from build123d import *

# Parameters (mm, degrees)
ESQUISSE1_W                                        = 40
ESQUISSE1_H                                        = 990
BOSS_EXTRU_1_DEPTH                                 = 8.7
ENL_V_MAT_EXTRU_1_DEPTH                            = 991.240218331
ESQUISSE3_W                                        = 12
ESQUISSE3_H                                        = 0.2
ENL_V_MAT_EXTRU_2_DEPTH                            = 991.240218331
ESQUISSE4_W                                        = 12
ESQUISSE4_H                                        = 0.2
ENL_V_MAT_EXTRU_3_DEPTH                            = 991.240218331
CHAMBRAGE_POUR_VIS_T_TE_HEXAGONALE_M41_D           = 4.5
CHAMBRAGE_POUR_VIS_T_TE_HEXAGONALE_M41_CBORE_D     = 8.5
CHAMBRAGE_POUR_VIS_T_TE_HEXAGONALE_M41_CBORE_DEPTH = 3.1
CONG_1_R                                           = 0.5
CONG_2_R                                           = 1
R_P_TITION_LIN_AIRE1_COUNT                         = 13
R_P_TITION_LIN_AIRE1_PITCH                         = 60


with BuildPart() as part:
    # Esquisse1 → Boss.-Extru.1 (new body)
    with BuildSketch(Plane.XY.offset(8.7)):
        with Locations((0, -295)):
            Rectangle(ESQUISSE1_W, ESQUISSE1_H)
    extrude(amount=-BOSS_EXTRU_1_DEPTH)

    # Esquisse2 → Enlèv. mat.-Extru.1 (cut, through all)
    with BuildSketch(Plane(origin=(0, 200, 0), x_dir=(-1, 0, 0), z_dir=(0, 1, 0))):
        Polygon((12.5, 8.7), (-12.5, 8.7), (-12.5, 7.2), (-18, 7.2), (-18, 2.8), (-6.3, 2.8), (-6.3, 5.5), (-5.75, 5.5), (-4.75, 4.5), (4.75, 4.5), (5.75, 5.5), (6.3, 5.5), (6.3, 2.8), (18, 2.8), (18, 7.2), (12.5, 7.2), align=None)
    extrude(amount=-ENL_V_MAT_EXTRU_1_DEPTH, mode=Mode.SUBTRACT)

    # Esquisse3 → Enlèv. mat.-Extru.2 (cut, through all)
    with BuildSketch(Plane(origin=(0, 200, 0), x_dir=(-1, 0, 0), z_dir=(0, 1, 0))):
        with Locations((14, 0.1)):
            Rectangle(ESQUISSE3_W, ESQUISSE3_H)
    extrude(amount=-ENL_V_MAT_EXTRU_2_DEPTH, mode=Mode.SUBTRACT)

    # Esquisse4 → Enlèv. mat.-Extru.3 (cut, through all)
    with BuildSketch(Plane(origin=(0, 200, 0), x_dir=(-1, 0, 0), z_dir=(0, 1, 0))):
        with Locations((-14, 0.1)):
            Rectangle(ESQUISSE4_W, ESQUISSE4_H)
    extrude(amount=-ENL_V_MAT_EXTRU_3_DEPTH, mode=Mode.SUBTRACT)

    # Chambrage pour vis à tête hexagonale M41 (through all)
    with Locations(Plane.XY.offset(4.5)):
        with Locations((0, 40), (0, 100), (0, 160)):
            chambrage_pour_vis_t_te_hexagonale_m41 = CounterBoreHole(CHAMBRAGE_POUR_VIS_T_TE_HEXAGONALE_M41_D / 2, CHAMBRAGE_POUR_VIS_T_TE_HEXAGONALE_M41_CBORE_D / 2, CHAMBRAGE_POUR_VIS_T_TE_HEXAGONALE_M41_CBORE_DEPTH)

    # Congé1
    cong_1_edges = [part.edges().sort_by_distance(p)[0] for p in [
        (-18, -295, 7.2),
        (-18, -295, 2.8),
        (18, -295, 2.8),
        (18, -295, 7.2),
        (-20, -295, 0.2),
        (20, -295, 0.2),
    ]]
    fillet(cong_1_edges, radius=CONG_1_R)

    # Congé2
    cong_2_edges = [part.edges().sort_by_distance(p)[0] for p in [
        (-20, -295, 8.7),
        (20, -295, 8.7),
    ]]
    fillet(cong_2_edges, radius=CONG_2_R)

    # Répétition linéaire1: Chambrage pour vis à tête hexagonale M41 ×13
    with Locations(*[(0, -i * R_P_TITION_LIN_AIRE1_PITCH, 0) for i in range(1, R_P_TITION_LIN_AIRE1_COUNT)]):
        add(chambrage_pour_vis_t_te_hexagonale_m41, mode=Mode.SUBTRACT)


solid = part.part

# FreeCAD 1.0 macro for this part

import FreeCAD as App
import Part
import Sketcher

V = App.Vector
Q = App.Units.Quantity


def edges_at(feature, points):
    """Names of the edges that pass closest to the given points."""
    edges = feature.Shape.Edges
    near = lambda p: min(range(len(edges)), key=lambda i: edges[i].distToShape(Part.Vertex(*p))[0])
    return sorted({f"Edge{near(p) + 1}" for p in points})


def add_polygon(sketch, points):
    """Adds a closed chain of lines whose ends are joined by coincident constraints."""
    first, n = sketch.GeometryCount, len(points)
    for a, b in zip(points, points[1:] + points[:1]):
        sketch.addGeometry(Part.LineSegment(App.Vector(*a, 0), App.Vector(*b, 0)), False)
    for i in range(n):
        sketch.addConstraint(Sketcher.Constraint("Coincident", first + i, 2, first + (i + 1) % n, 1))

doc = App.newDocument("Part")
body = doc.addObject("PartDesign::Body", "Body")

# Sketch on XY plane
sketch1 = body.newObject("Sketcher::SketchObject", "Sketch")
sketch1.AttachmentSupport = (doc.getObject("XY_Plane"), [""])
sketch1.MapMode = "FlatFace"
sketch1.AttachmentOffset = App.Placement(V(0, 0, 8.7), App.Rotation())
add_polygon(sketch1, [(-20, 200), (-20, -790), (20, -790), (20, 200)])  # lines 0-3
sketch1.addConstraint([
    Sketcher.Constraint("Vertical", 0),
    Sketcher.Constraint("Horizontal", 1),
    Sketcher.Constraint("Vertical", 2),
    Sketcher.Constraint("Horizontal", 3),
    Sketcher.Constraint("DistanceX", 1, 1, 1, 2, Q("40 mm")),
    Sketcher.Constraint("DistanceY", 0, 2, 0, 1, Q("990 mm")),
    Sketcher.Constraint("DistanceX", 0, 2, -1, 1, Q("20 mm")),
    Sketcher.Constraint("DistanceY", 0, 2, -1, 1, Q("790 mm")),
])
pad1 = body.newObject("PartDesign::Pad", "Pad")
pad1.Profile = sketch1
pad1.Length = 8.7
pad1.Reversed = True

# Sketch on XZ plane
sketch2 = body.newObject("Sketcher::SketchObject", "Sketch001")
sketch2.AttachmentSupport = (doc.getObject("XZ_Plane"), [""])
sketch2.MapMode = "FlatFace"
sketch2.AttachmentOffset = App.Placement(V(0, 0, -200), App.Rotation())
add_polygon(sketch2, [(-12.5, 8.7), (12.5, 8.7), (12.5, 7.2), (18, 7.2), (18, 2.8), (6.3, 2.8), (6.3, 5.5), (5.8, 5.5), (4.8, 4.5), (-4.8, 4.5), (-5.8, 5.5), (-6.3, 5.5), (-6.3, 2.8), (-18, 2.8), (-18, 7.2), (-12.5, 7.2)])  # lines 0-15
sketch2.addConstraint([
    Sketcher.Constraint("Horizontal", 0),
    Sketcher.Constraint("Vertical", 1),
    Sketcher.Constraint("Horizontal", 2),
    Sketcher.Constraint("Vertical", 3),
    Sketcher.Constraint("Horizontal", 4),
    Sketcher.Constraint("Vertical", 5),
    Sketcher.Constraint("Horizontal", 6),
    Sketcher.Constraint("Horizontal", 8),
    Sketcher.Constraint("Horizontal", 10),
    Sketcher.Constraint("Vertical", 11),
    Sketcher.Constraint("Horizontal", 12),
    Sketcher.Constraint("Vertical", 13),
    Sketcher.Constraint("Horizontal", 14),
    Sketcher.Constraint("Vertical", 15),
    Sketcher.Constraint("Symmetric", 6, 2, 9, 2, -2),
    Sketcher.Constraint("Symmetric", 4, 2, 11, 2, -2),
    Sketcher.Constraint("Symmetric", 2, 2, 13, 2, -2),
    Sketcher.Constraint("Perpendicular", 7, 9),
    Sketcher.Constraint("Equal", 2, 14),
    Sketcher.Constraint("Equal", 7, 9),
    Sketcher.Constraint("DistanceX", 0, 1, 0, 2, Q("25 mm")),
    Sketcher.Constraint("DistanceX", 2, 1, 2, 2, Q("5.5 mm")),
    Sketcher.Constraint("DistanceX", 4, 2, 4, 1, Q("11.7 mm")),
    Sketcher.Constraint("DistanceX", 8, 2, 8, 1, Q("9.5 mm")),
    Sketcher.Constraint("DistanceY", 1, 2, 1, 1, Q("1.5 mm")),
    Sketcher.Constraint("DistanceY", 3, 2, 3, 1, Q("4.4 mm")),
    Sketcher.Constraint("DistanceY", 5, 1, 5, 2, Q("2.7 mm")),
    Sketcher.Constraint("DistanceX", 7, 2, 6, 2, Q("1 mm")),
    Sketcher.Constraint("DistanceY", -1, 1, 0, 2, Q("8.7 mm")),
])
pocket1 = body.newObject("PartDesign::Pocket", "Pocket")
pocket1.Profile = sketch2
pocket1.Type = "ThroughAll"
pocket1.Reversed = True

# Sketch on XZ plane
sketch3 = body.newObject("Sketcher::SketchObject", "Sketch002")
sketch3.AttachmentSupport = (doc.getObject("XZ_Plane"), [""])
sketch3.MapMode = "FlatFace"
sketch3.AttachmentOffset = App.Placement(V(0, 0, -200), App.Rotation())
add_polygon(sketch3, [(-8, 0.2), (-8, 0), (-20, 0), (-20, 0.2)])  # lines 0-3
sketch3.addConstraint([
    Sketcher.Constraint("Vertical", 0),
    Sketcher.Constraint("Horizontal", 1),
    Sketcher.Constraint("Vertical", 2),
    Sketcher.Constraint("Horizontal", 3),
    Sketcher.Constraint("PointOnObject", 0, 2, -1),
    Sketcher.Constraint("DistanceX", 1, 2, 1, 1, Q("12 mm")),
    Sketcher.Constraint("DistanceY", 0, 2, 0, 1, Q("0.2 mm")),
    Sketcher.Constraint("DistanceX", 0, 2, -1, 1, Q("8 mm")),
])
pocket2 = body.newObject("PartDesign::Pocket", "Pocket001")
pocket2.Profile = sketch3
pocket2.Type = "ThroughAll"
pocket2.Reversed = True

# Sketch on XZ plane
sketch4 = body.newObject("Sketcher::SketchObject", "Sketch003")
sketch4.AttachmentSupport = (doc.getObject("XZ_Plane"), [""])
sketch4.MapMode = "FlatFace"
sketch4.AttachmentOffset = App.Placement(V(0, 0, -200), App.Rotation())
add_polygon(sketch4, [(20, 0.2), (20, 0), (8, 0), (8, 0.2)])  # lines 0-3
sketch4.addConstraint([
    Sketcher.Constraint("Vertical", 0),
    Sketcher.Constraint("Horizontal", 1),
    Sketcher.Constraint("Vertical", 2),
    Sketcher.Constraint("Horizontal", 3),
    Sketcher.Constraint("PointOnObject", 0, 2, -1),
    Sketcher.Constraint("DistanceX", 1, 2, 1, 1, Q("12 mm")),
    Sketcher.Constraint("DistanceY", 0, 2, 0, 1, Q("0.2 mm")),
    Sketcher.Constraint("DistanceX", -1, 1, 0, 2, Q("20 mm")),
])
pocket3 = body.newObject("PartDesign::Pocket", "Pocket002")
pocket3.Profile = sketch4
pocket3.Type = "ThroughAll"
pocket3.Reversed = True

# Sketch on XY plane
sketch5 = body.newObject("Sketcher::SketchObject", "Sketch004")
sketch5.AttachmentSupport = (doc.getObject("XY_Plane"), [""])
sketch5.MapMode = "FlatFace"
sketch5.AttachmentOffset = App.Placement(V(0, 0, 4.5), App.Rotation())
sketch5.addGeometry([
    Part.Circle(V(0, 40, 0), V(0, 0, 1), 2.2),
    Part.Circle(V(0, 100, 0), V(0, 0, 1), 2.2),
    Part.Circle(V(0, 160, 0), V(0, 0, 1), 2.2),
], False)
sketch5.addConstraint([
    Sketcher.Constraint("Equal", 0, 1),
    Sketcher.Constraint("Equal", 1, 2),
    Sketcher.Constraint("PointOnObject", 0, 3, -2),
    Sketcher.Constraint("PointOnObject", 1, 3, -2),
    Sketcher.Constraint("PointOnObject", 2, 3, -2),
    Sketcher.Constraint("Diameter", 0, Q("4.5 mm")),
    Sketcher.Constraint("DistanceY", -1, 1, 0, 3, Q("40 mm")),
    Sketcher.Constraint("DistanceY", -1, 1, 1, 3, Q("100 mm")),
    Sketcher.Constraint("DistanceY", -1, 1, 2, 3, Q("160 mm")),
])
doc.recompute()
hole = body.newObject("PartDesign::Hole", "Hole")
hole.Profile = sketch5
hole.ThreadType = "None"
hole.Diameter = 4.5
hole.DepthType = "ThroughAll"
hole.HoleCutType = "Counterbore"
hole.HoleCutDiameter = 8.5
hole.HoleCutDepth = 3.1
doc.recompute()

fillet = body.newObject("PartDesign::Fillet", "Fillet")
fillet.Base = (hole, edges_at(hole, [
    (-18, -295, 7.2),
    (-18, -295, 2.8),
    (18, -295, 2.8),
    (18, -295, 7.2),
    (-20, -295, 0.2),
    (20, -295, 0.2),
]))
fillet.Radius = 0.5
doc.recompute()

fillet2 = body.newObject("PartDesign::Fillet", "Fillet001")
fillet2.Base = (fillet, edges_at(fillet, [(-20, -295, 8.7), (20, -295, 8.7)]))
fillet2.Radius = 1
doc.recompute()

linearpattern = body.newObject("PartDesign::LinearPattern", "LinearPattern")
linearpattern.Originals = [hole]
linearpattern.Direction = (doc.getObject("Y_Axis"), [""])
linearpattern.Mode = "offset"
linearpattern.Offset = 60
linearpattern.Occurrences = 13
linearpattern.Reversed = True
body.Tip = linearpattern

doc.recompute()
